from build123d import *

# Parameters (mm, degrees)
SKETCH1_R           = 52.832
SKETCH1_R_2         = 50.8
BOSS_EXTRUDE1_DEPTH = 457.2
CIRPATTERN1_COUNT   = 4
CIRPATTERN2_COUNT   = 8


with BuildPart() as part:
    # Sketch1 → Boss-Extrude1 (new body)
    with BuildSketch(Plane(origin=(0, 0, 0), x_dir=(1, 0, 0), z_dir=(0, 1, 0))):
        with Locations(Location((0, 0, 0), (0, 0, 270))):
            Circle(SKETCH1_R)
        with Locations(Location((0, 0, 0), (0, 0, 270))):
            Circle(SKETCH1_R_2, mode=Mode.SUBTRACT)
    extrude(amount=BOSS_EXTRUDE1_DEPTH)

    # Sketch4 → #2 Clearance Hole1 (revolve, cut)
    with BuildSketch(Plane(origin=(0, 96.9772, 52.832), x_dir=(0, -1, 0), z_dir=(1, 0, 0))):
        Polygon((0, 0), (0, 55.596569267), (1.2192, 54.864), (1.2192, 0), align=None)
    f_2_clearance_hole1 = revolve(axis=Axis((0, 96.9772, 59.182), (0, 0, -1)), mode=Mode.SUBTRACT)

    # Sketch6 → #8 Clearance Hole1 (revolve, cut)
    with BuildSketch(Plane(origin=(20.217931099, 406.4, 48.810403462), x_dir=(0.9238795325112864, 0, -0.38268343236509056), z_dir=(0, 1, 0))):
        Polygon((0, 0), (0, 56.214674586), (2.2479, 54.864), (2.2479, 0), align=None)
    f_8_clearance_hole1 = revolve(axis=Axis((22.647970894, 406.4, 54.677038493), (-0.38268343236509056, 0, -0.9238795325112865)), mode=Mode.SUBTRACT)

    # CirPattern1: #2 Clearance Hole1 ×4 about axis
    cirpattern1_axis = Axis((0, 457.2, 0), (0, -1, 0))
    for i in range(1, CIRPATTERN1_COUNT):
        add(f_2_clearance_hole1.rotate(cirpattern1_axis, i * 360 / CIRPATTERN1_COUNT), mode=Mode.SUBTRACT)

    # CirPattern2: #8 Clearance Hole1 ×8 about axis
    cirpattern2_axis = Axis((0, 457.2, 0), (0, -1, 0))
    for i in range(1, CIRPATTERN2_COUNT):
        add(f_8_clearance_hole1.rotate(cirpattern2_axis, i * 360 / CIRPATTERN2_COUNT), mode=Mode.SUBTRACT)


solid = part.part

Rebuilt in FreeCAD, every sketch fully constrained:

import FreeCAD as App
import Part
import Sketcher
from FreeCAD import Vector
Q = App.Units.Quantity


def add_polygon(sketch, points):
    """Adds a closed chain of lines whose ends are joined by coincident constraints."""
    first, n = sketch.GeometryCount, len(points)
    for a, b in zip(points, points[1:] + points[:1]):
        sketch.addGeometry(Part.LineSegment(App.Vector(*a, 0), App.Vector(*b, 0)), False)
    for i in range(n):
        sketch.addConstraint(Sketcher.Constraint("Coincident", first + i, 2, first + (i + 1) % n, 1))

doc = App.newDocument("Part")
body = doc.addObject("PartDesign::Body", "Body")

sketch1 = body.newObject("Sketcher::SketchObject", "Sketch")
sketch1.AttachmentSupport = (doc.getObject("XZ_Plane"), [""])
sketch1.MapMode = "FlatFace"
sketch1.addGeometry([
    Part.Circle(Vector(0, 0, 0), Vector(0, 0, 1), 53),
    Part.Circle(Vector(0, 0, 0), Vector(0, 0, 1), 51),
], False)
sketch1.addConstraint([
    Sketcher.Constraint("Coincident", 0, 3, -1, 1),
    Sketcher.Constraint("Coincident", 1, 3, -1, 1),
    Sketcher.Constraint("Diameter", 1, Q("4 in")),
    Sketcher.Constraint("Diameter", 0, Q("4.16 in")),
])
pad1 = body.newObject("PartDesign::Pad", "Pad")
pad1.Profile = sketch1
pad1.Length = Q("18 in")
pad1.Reversed = True

sketch2 = body.newObject("Sketcher::SketchObject", "Sketch001")
sketch2.AttachmentSupport = (doc.getObject("YZ_Plane"), [""])
sketch2.MapMode = "FlatFace"
add_polygon(sketch2, [(97, -2.8), (97, 52.8), (95.8, 52.8), (95.8, -2)])
sketch2.addGeometry(Part.LineSegment(Vector(97, 52.8, 0), Vector(97, -2.8, 0)), True)
sketch2.addConstraint([
    Sketcher.Constraint("Vertical", 0),
    Sketcher.Constraint("Horizontal", 1),
    Sketcher.Constraint("Vertical", 2),
    Sketcher.Constraint("Vertical", 4),
    Sketcher.Constraint("Coincident", 4, 1, 0, 2),
    Sketcher.Constraint("Equal", 0, 4),
    Sketcher.Constraint("Angle", 3, Q("-31 deg")),
    Sketcher.Constraint("DistanceY", 2, 2, 2, 1, Q("2.16 in")),
    Sketcher.Constraint("DistanceX", 1, 2, 1, 1, Q("0.048 in")),
    Sketcher.Constraint("DistanceY", -1, 1, 0, 2, Q("2.08 in")),
    Sketcher.Constraint("DistanceX", -1, 1, 1, 2, Q("3.77 in")),
])
groove = body.newObject("PartDesign::Groove", "Groove")
groove.Profile = sketch2
groove.ReferenceAxis = (sketch2, ["Axis0"])
groove.Angle = 360

sketch3 = body.newObject("Sketcher::SketchObject", "Sketch002")
sketch3.AttachmentSupport = (doc.getObject("XZ_Plane"), [""])
sketch3.MapMode = "FlatFace"
sketch3.AttachmentOffset = App.Placement(Vector(0, 0, -16 * 25.4), App.Rotation())
add_polygon(sketch3, [(-1.3, -3.1), (20.2, 48.8), (22.3, 48), (1.3, -2.7)])
sketch3.addGeometry(Part.LineSegment(Vector(20.2, 48.8, 0), Vector(-1.3, -3.1, 0)), True)
sketch3.addConstraint([
    Sketcher.Constraint("Coincident", 4, 1, 0, 2),
    Sketcher.Constraint("Coincident", 4, 2, 3, 2),
    Sketcher.Constraint("Perpendicular", 0, 1),
    Sketcher.Constraint("Perpendicular", 1, 2),
    Sketcher.Constraint("Angle", 0, Q("67.5 deg")),
    Sketcher.Constraint("Angle", 3, Q("-171.5 deg")),
    Sketcher.Constraint("Distance", 2, Q("2.16 in")),
    Sketcher.Constraint("Distance", 1, Q("0.0885 in")),
    Sketcher.Constraint("DistanceX", -1, 1, 0, 2, Q("20.217931 mm")),
    Sketcher.Constraint("DistanceY", -1, 1, 1, 2, Q("47.950169 mm")),
])
groove2 = body.newObject("PartDesign::Groove", "Groove001")
groove2.Profile = sketch3
groove2.ReferenceAxis = (sketch3, ["Axis0"])
groove2.Angle = 360
doc.recompute()

polarpattern = body.newObject("PartDesign::PolarPattern", "PolarPattern")
polarpattern.Originals = [groove]
polarpattern.Axis = (doc.getObject("Y_Axis"), [""])
polarpattern.Angle = 360
polarpattern.Occurrences = 4
body.Tip = polarpattern
doc.recompute()

polarpattern2 = body.newObject("PartDesign::PolarPattern", "PolarPattern001")
polarpattern2.Originals = [groove2]
polarpattern2.Axis = (doc.getObject("Y_Axis"), [""])
polarpattern2.Angle = 360
polarpattern2.Occurrences = 8
body.Tip = polarpattern2

doc.recompute()
